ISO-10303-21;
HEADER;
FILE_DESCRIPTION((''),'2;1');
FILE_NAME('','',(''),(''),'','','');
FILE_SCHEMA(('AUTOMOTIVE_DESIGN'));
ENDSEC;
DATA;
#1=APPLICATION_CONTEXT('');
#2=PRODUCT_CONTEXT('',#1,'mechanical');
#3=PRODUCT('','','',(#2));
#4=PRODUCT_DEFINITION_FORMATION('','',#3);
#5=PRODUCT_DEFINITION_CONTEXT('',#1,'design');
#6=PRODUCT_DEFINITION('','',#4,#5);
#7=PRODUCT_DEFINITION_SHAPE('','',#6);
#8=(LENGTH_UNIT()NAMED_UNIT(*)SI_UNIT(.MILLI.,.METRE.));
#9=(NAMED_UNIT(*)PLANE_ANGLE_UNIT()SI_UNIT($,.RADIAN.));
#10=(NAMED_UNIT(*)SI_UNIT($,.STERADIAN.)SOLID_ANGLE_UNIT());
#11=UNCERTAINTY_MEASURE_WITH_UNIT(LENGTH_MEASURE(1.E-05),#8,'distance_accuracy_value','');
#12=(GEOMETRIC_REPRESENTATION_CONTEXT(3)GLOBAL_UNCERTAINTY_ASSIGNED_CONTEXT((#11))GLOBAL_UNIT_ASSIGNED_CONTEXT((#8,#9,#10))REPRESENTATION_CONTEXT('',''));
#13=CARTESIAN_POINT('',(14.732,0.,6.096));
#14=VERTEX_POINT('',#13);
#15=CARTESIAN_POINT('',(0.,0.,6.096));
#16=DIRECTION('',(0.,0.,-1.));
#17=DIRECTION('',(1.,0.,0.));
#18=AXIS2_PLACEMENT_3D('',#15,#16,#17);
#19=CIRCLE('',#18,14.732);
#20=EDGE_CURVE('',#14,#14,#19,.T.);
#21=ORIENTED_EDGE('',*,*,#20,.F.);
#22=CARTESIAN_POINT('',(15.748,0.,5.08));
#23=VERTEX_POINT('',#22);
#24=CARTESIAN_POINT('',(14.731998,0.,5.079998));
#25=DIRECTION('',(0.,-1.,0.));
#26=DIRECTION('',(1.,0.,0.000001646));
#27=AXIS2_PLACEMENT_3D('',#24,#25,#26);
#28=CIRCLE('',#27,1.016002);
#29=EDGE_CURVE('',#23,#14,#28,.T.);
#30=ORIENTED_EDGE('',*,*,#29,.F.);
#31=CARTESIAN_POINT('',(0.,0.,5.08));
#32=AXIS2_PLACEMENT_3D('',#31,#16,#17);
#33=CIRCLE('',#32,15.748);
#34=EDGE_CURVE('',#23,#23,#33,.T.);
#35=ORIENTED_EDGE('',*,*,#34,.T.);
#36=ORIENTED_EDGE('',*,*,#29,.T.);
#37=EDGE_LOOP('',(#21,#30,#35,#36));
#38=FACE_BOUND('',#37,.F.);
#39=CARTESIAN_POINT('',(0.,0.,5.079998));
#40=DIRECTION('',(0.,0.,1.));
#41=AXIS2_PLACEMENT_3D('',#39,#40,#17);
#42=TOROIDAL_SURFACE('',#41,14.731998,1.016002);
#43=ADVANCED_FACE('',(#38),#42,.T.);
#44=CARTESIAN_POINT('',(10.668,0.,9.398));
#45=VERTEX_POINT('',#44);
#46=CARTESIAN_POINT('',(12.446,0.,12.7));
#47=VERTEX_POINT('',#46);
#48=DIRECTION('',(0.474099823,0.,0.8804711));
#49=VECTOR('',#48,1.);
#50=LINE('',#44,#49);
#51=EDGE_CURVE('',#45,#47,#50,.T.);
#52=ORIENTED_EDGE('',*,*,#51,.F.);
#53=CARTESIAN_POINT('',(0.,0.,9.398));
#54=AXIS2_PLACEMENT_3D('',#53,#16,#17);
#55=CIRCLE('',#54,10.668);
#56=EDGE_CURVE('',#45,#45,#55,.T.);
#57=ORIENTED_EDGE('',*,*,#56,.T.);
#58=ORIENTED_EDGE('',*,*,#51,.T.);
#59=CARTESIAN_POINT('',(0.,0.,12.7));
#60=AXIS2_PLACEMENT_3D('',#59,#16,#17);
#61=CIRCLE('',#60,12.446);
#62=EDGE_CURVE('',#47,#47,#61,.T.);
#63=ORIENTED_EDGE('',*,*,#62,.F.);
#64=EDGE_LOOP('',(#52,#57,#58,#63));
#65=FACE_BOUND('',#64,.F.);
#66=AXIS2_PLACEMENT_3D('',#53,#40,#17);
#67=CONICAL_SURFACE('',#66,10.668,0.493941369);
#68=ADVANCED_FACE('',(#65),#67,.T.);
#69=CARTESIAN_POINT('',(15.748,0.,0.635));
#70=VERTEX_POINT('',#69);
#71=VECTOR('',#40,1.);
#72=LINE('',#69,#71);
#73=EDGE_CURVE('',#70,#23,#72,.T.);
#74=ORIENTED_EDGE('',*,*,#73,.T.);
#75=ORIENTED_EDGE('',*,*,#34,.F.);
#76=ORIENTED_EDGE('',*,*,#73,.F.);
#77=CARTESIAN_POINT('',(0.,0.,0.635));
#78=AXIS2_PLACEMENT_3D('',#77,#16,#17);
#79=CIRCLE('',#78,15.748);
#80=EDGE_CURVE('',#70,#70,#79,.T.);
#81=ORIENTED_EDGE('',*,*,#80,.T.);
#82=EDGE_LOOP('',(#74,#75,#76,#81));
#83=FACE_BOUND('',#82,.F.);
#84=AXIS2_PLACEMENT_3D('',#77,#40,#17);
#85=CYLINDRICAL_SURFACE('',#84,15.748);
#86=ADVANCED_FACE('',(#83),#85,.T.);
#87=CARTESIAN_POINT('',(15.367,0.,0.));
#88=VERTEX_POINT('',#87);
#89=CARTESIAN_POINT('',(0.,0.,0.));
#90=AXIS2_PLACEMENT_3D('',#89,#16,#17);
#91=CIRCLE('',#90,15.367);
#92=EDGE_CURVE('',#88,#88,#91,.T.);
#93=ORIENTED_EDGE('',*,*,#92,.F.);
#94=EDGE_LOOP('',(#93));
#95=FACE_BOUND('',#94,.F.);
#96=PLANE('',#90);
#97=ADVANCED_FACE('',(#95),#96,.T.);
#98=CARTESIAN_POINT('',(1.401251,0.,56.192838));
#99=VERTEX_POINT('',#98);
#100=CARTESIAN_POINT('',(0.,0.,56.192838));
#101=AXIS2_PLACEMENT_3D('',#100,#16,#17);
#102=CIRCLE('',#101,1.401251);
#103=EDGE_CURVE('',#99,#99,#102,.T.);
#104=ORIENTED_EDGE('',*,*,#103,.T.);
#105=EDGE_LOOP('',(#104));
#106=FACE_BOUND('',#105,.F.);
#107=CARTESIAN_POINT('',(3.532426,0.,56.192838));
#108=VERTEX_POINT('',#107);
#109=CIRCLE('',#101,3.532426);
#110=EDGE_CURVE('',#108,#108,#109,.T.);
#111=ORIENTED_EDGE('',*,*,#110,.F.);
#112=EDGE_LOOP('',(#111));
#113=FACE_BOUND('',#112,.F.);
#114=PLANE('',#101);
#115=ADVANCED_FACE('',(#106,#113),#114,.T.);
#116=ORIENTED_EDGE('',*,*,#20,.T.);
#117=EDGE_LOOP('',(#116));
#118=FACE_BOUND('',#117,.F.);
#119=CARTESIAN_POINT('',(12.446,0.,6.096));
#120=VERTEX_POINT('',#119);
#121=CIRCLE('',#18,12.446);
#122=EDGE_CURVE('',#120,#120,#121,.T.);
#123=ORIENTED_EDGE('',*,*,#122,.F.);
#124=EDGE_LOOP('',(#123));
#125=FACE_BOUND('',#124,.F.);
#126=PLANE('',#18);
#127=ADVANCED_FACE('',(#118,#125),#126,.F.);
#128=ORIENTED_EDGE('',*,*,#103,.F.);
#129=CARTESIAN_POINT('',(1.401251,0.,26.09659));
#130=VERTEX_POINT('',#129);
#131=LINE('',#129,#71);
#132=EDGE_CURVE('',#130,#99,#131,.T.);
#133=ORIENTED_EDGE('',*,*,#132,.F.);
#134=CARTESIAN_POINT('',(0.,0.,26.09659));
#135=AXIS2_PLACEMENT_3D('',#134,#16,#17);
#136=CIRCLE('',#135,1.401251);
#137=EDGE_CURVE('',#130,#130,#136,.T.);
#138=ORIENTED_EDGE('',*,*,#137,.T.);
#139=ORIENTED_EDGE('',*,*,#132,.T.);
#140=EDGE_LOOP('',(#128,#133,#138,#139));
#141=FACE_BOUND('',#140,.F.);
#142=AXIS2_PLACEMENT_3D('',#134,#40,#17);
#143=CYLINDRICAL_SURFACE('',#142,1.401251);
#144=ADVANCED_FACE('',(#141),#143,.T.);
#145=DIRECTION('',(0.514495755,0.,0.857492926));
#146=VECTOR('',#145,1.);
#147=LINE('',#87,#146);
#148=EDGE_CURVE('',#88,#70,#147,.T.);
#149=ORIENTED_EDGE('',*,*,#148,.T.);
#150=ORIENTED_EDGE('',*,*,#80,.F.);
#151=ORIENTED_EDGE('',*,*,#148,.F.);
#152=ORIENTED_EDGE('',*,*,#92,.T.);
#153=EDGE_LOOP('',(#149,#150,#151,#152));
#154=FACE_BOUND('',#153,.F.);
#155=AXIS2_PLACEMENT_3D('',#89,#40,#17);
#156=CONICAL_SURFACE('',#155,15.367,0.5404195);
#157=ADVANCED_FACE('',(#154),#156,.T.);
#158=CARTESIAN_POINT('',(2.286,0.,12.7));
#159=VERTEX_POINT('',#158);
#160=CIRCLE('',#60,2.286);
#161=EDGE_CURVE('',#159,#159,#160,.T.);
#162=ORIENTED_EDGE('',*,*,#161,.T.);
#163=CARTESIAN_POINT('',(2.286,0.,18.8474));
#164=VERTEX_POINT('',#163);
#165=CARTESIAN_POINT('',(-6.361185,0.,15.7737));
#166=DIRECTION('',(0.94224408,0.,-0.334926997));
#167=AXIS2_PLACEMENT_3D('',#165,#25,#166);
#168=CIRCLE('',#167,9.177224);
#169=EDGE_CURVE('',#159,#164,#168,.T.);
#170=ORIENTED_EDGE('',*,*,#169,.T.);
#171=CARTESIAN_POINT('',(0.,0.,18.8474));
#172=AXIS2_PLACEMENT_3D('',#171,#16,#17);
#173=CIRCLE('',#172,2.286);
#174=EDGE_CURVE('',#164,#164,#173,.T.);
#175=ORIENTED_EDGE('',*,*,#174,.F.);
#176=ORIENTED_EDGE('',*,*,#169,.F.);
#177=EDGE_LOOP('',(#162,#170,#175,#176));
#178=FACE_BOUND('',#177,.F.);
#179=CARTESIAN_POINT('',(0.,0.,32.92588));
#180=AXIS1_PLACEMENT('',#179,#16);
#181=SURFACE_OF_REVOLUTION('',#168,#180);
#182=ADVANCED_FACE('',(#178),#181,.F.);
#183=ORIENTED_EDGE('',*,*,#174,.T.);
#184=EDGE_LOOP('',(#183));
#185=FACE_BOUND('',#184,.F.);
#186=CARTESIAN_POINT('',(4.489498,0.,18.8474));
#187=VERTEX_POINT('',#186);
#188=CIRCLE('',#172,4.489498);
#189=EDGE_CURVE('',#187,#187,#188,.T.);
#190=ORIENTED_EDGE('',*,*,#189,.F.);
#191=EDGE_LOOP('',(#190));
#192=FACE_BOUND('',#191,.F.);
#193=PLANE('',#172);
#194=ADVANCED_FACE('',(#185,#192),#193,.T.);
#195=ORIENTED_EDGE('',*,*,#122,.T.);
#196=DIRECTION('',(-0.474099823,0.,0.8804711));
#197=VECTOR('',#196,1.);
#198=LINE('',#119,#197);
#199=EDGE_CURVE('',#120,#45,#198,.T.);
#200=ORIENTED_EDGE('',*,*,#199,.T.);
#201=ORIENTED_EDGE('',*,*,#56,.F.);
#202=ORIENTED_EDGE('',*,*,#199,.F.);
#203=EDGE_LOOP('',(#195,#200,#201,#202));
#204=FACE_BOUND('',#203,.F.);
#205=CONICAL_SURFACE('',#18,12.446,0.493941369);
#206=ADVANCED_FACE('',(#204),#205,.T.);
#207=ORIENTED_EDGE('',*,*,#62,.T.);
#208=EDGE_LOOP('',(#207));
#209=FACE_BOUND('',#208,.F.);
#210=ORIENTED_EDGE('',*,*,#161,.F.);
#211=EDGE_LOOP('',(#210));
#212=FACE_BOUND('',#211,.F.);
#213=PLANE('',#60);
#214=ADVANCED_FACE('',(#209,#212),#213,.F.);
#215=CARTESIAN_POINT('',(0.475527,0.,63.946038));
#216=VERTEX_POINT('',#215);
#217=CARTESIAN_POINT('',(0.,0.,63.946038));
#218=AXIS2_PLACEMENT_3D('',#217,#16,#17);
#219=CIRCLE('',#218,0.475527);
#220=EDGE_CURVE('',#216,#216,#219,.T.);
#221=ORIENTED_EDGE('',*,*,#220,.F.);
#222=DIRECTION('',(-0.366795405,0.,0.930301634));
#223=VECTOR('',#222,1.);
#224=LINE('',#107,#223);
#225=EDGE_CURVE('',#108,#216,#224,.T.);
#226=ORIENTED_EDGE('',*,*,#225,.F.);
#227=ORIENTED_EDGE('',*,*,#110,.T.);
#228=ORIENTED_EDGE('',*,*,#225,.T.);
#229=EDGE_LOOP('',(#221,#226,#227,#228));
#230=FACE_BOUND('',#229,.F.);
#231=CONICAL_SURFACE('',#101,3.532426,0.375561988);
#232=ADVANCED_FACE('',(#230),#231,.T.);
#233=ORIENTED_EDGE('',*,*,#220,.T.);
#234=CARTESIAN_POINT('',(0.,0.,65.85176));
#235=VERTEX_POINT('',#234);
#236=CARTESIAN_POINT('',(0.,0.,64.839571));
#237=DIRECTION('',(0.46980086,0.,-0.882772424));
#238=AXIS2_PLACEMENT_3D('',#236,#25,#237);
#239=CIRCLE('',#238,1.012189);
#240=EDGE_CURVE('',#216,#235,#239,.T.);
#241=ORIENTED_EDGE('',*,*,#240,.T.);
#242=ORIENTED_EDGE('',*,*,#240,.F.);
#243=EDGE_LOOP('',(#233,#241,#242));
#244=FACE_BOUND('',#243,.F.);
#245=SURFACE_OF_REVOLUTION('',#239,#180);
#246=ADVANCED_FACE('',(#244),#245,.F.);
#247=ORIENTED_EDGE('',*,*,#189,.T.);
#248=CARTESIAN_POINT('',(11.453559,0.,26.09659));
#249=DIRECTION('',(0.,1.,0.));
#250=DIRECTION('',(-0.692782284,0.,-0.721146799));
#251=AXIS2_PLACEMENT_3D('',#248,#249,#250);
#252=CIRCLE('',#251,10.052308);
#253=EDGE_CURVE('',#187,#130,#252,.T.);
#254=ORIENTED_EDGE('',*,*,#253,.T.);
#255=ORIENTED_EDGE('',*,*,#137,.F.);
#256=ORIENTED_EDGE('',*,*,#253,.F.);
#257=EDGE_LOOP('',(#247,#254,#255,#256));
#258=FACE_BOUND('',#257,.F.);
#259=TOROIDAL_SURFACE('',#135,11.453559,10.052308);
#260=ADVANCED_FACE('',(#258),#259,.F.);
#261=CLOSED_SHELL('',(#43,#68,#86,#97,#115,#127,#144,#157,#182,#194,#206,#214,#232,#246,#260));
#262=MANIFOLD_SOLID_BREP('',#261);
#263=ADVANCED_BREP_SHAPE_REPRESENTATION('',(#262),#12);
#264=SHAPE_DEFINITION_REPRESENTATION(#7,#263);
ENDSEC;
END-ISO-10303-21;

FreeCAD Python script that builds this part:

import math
import FreeCAD as App
import Part
import Sketcher
Q = App.Units.Quantity

doc = App.newDocument("Part")
body = doc.addObject("PartDesign::Body", "Body")

sketch1 = doc.addObject("Sketcher::SketchObject", "Sketch")
body.addObject(sketch1)
sketch1.AttachmentSupport = (doc.XZ_Plane, [""])
sketch1.MapMode = "FlatFace"
sketch1.addGeometry(Part.LineSegment(App.Vector(0, 0, 0), App.Vector(15.367, 0, 0)), False)
sketch1.addGeometry(Part.LineSegment(App.Vector(15.367, 0, 0), App.Vector(15.748, 0.635, 0)), False)
sketch1.addGeometry(Part.LineSegment(App.Vector(15.748, 0.635, 0), App.Vector(15.748, 5.08, 0)), False)
sketch1.addGeometry(Part.ArcOfCircle(Part.Circle(App.Vector(14.731998, 5.079998, 0), App.Vector(0, 0, 1), 1.016002), math.radians(0.000094), math.radians(89.999906)), False)
sketch1.addGeometry(Part.LineSegment(App.Vector(14.732, 6.096, 0), App.Vector(12.446, 6.096, 0)), False)
sketch1.addGeometry(Part.LineSegment(App.Vector(12.446, 6.096, 0), App.Vector(10.668, 9.398, 0)), False)
sketch1.addGeometry(Part.LineSegment(App.Vector(10.668, 9.398, 0), App.Vector(12.446, 12.7, 0)), False)
sketch1.addGeometry(Part.LineSegment(App.Vector(12.446, 12.7, 0), App.Vector(2.286, 12.7, 0)), False)
sketch1.addGeometry(Part.ArcOfCircle(Part.Circle(App.Vector(-6.361185, 15.7737, 0), App.Vector(0, 0, 1), 9.177224), math.radians(-19.568099), math.radians(19.568099)), False)
sketch1.addGeometry(Part.LineSegment(App.Vector(2.286, 18.8474, 0), App.Vector(4.489498, 18.8474, 0)), False)
sketch1.addGeometry(Part.ArcOfCircle(Part.Circle(App.Vector(11.453559, 26.09659, 0), App.Vector(0, 0, 1), 10.052308), math.radians(179.999997), math.radians(226.149244)), False)
sketch1.addGeometry(Part.LineSegment(App.Vector(1.401251, 26.09659, 0), App.Vector(1.401251, 56.192838, 0)), False)
sketch1.addGeometry(Part.LineSegment(App.Vector(1.401251, 56.192838, 0), App.Vector(3.532426, 56.192838, 0)), False)
sketch1.addGeometry(Part.LineSegment(App.Vector(3.532426, 56.192838, 0), App.Vector(0.475527, 63.946038, 0)), False)
sketch1.addGeometry(Part.ArcOfCircle(Part.Circle(App.Vector(0, 64.839571, 0), App.Vector(0, 0, 1), 1.012189), math.radians(-61.978629), math.radians(89.999979)), False)
sketch1.addGeometry(Part.LineSegment(App.Vector(0, 65.85176, 0), App.Vector(0, 0, 0)), False)
sketch1.addConstraint(Sketcher.Constraint("Coincident", 0, 2, 1, 1))
sketch1.addConstraint(Sketcher.Constraint("Coincident", 1, 2, 2, 1))
sketch1.addConstraint(Sketcher.Constraint("Tangent", 2, 2, 3, 1))
sketch1.addConstraint(Sketcher.Constraint("Tangent", 3, 2, 4, 1))
sketch1.addConstraint(Sketcher.Constraint("Coincident", 4, 2, 5, 1))
sketch1.addConstraint(Sketcher.Constraint("Coincident", 5, 2, 6, 1))
sketch1.addConstraint(Sketcher.Constraint("Coincident", 6, 2, 7, 1))
sketch1.addConstraint(Sketcher.Constraint("Coincident", 7, 2, 8, 1))
sketch1.addConstraint(Sketcher.Constraint("Coincident", 8, 2, 9, 1))
sketch1.addConstraint(Sketcher.Constraint("Coincident", 9, 2, 10, 2))
sketch1.addConstraint(Sketcher.Constraint("Tangent", 10, 1, 11, 1))
sketch1.addConstraint(Sketcher.Constraint("Coincident", 11, 2, 12, 1))
sketch1.addConstraint(Sketcher.Constraint("Coincident", 12, 2, 13, 1))
sketch1.addConstraint(Sketcher.Constraint("Coincident", 13, 2, 14, 1))
sketch1.addConstraint(Sketcher.Constraint("Coincident", 14, 2, 15, 1))
sketch1.addConstraint(Sketcher.Constraint("Coincident", 15, 2, 0, 1))
sketch1.addConstraint(Sketcher.Constraint("Horizontal", 0))
sketch1.addConstraint(Sketcher.Constraint("Vertical", 2))
sketch1.addConstraint(Sketcher.Constraint("Horizontal", 4))
sketch1.addConstraint(Sketcher.Constraint("Horizontal", 7))
sketch1.addConstraint(Sketcher.Constraint("Horizontal", 9))
sketch1.addConstraint(Sketcher.Constraint("Vertical", 11))
sketch1.addConstraint(Sketcher.Constraint("Horizontal", 12))
sketch1.addConstraint(Sketcher.Constraint("Vertical", 15))
sketch1.addConstraint(Sketcher.Constraint("Coincident", 15, 2, -1, 1))
sketch1.addConstraint(Sketcher.Constraint("PointOnObject", 14, 3, -2))
sketch1.addConstraint(Sketcher.Constraint("Vertical", 4, 2, 6, 2))
sketch1.addConstraint(Sketcher.Constraint("Vertical", 7, 2, 8, 2))
sketch1.addConstraint(Sketcher.Constraint("Equal", 5, 6))
sketch1.addConstraint(Sketcher.Constraint("Radius", 3, Q("0.0400001 in")))
sketch1.addConstraint(Sketcher.Constraint("DistanceX", 7, 2, 7, 1, Q("0.4 in")))
sketch1.addConstraint(Sketcher.Constraint("DistanceX", 4, 2, 4, 1, Q("0.09 in")))
sketch1.addConstraint(Sketcher.Constraint("DistanceY", -1, 1, 3, 3, Q("0.1999999 in")))
sketch1.addConstraint(Sketcher.Constraint("DistanceY", -1, 1, 6, 2, Q("0.5 in")))
sketch1.addConstraint(Sketcher.Constraint("DistanceX", 5, 2, 2, 2, Q("0.2 in")))
sketch1.addConstraint(Sketcher.Constraint("DistanceX", 0, 1, 0, 2, Q("0.605 in")))
sketch1.addConstraint(Sketcher.Constraint("DistanceY", 2, 1, 2, 2, Q("0.175 in")))
sketch1.addConstraint(Sketcher.Constraint("DistanceX", -1, 1, 3, 3, Q("0.5799999 in")))
sketch1.addConstraint(Sketcher.Constraint("Radius", 14, Q("1.012189 mm")))
sketch1.addConstraint(Sketcher.Constraint("DistanceX", 9, 1, 9, 2, Q("2.203498 mm")))
sketch1.addConstraint(Sketcher.Constraint("Radius", 8, Q("9.177224 mm")))
sketch1.addConstraint(Sketcher.Constraint("Radius", 10, Q("10.052308 mm")))
sketch1.addConstraint(Sketcher.Constraint("DistanceY", 11, 1, 11, 2, Q("30.096248 mm")))
sketch1.addConstraint(Sketcher.Constraint("DistanceY", 15, 2, 15, 1, Q("65.85176 mm")))
sketch1.addConstraint(Sketcher.Constraint("DistanceY", -1, 1, 8, 3, Q("15.7737 mm")))
sketch1.addConstraint(Sketcher.Constraint("DistanceY", 11, 2, 13, 2, Q("7.7532 mm")))
sketch1.addConstraint(Sketcher.Constraint("DistanceX", 13, 2, 12, 2, Q("3.056899 mm")))
sketch1.addConstraint(Sketcher.Constraint("DistanceX", 12, 1, 12, 2, Q("2.131175 mm")))
revolution = doc.addObject("PartDesign::Revolution", "Revolution")
body.addObject(revolution)
revolution.Profile = sketch1
revolution.ReferenceAxis = (sketch1, ["V_Axis"])
revolution.Angle = 360

doc.recompute()
